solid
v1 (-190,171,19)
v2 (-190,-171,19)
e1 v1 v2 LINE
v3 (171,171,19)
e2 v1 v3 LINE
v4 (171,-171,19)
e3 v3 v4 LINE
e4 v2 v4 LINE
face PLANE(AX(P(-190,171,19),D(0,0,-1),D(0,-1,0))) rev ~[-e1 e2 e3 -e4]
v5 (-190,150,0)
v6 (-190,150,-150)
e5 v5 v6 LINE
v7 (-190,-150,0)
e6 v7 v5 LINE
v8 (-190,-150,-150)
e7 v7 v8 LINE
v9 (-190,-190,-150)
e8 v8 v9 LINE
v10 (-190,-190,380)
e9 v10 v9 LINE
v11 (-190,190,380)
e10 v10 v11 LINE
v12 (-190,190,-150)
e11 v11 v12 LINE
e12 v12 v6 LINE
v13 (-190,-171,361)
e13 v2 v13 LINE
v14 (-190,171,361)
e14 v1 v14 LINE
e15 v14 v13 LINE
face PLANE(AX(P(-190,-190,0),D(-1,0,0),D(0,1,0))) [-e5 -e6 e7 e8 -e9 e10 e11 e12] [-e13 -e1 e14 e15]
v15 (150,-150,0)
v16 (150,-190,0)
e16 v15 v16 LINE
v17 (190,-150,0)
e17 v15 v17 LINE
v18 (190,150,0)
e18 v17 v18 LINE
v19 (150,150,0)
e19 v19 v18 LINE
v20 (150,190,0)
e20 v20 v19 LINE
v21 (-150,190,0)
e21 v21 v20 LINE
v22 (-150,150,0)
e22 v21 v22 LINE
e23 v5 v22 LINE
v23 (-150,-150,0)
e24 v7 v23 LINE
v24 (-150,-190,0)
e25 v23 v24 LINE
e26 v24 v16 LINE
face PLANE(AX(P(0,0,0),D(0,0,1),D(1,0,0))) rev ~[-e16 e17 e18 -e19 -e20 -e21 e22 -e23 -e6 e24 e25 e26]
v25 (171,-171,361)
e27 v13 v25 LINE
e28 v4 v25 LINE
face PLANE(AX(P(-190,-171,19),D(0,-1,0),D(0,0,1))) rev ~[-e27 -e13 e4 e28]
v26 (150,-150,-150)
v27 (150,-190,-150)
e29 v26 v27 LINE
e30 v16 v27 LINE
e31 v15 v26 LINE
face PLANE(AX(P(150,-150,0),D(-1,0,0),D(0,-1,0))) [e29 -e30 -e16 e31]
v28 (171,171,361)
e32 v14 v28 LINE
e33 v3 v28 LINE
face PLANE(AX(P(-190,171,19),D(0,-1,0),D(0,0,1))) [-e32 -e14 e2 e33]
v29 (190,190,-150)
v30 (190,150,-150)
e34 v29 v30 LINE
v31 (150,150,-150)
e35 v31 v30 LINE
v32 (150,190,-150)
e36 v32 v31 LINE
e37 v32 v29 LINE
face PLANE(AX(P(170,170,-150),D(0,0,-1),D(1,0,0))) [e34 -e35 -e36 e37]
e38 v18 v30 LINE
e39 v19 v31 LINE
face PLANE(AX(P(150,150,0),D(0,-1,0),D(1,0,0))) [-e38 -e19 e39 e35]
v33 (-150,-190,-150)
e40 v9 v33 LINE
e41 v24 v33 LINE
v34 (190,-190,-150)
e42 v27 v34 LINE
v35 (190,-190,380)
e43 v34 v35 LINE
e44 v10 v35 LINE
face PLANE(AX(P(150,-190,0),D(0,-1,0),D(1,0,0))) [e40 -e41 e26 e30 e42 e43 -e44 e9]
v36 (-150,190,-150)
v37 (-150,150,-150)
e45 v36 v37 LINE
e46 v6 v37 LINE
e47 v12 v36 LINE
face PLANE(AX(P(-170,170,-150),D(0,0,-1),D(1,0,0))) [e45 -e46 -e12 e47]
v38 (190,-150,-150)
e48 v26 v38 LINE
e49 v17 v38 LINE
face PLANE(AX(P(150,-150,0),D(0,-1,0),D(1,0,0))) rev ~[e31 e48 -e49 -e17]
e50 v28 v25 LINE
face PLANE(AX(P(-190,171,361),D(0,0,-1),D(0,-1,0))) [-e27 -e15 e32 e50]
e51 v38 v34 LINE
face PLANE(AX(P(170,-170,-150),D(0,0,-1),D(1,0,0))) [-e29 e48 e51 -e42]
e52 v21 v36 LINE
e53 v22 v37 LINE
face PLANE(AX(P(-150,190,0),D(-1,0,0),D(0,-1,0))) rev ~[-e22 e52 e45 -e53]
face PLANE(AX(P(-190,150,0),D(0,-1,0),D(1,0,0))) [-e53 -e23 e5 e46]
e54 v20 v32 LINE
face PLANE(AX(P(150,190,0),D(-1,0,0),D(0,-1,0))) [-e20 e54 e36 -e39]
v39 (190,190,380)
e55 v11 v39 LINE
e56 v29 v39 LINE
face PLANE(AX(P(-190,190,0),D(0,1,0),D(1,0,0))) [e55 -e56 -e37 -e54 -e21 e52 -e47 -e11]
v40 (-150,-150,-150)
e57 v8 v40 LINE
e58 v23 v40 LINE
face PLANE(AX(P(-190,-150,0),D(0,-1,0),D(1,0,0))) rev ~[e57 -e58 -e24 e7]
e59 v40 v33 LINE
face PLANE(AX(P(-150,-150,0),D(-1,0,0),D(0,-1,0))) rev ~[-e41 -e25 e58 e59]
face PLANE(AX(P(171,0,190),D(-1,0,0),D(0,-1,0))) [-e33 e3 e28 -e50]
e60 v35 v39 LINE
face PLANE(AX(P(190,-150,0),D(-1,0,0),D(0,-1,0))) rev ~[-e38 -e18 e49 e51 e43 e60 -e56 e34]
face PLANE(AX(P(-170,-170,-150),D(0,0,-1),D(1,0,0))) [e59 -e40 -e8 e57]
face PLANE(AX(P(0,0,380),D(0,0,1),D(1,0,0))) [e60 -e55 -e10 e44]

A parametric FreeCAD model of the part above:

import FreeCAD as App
import Part
import Sketcher
from FreeCAD import Vector


def add_polygon(sketch, points):
    """Adds a closed chain of lines whose ends are joined by coincident constraints."""
    first, n = sketch.GeometryCount, len(points)
    for a, b in zip(points, points[1:] + points[:1]):
        sketch.addGeometry(Part.LineSegment(App.Vector(*a, 0), App.Vector(*b, 0)), False)
    for i in range(n):
        sketch.addConstraint(Sketcher.Constraint("Coincident", first + i, 2, first + (i + 1) % n, 1))

doc = App.newDocument("Part")
body = doc.addObject("PartDesign::Body", "Body")

# Sketch on XY plane
sketch1 = body.newObject("Sketcher::SketchObject", "Sketch")
sketch1.AttachmentSupport = (doc.getObject("XY_Plane"), [""])
sketch1.MapMode = "FlatFace"
add_polygon(sketch1, [(-190, 190), (-190, -190), (190, -190), (190, 190)])  # lines 0-3
sketch1.addConstraint([
    Sketcher.Constraint("Vertical", 0),
    Sketcher.Constraint("Horizontal", 1),
    Sketcher.Constraint("Vertical", 2),
    Sketcher.Constraint("Horizontal", 3),
    Sketcher.Constraint("Symmetric", 0, 2, 2, 2, -1, 1),
    Sketcher.Constraint("Equal", 3, 0),
    Sketcher.Constraint("DistanceX", 1, 1, 1, 2, 380.0),
])
pad1 = body.newObject("PartDesign::Pad", "Pad")
pad1.Profile = sketch1
pad1.Length = 380

# Sketch on YZ plane
sketch2 = body.newObject("Sketcher::SketchObject", "Sketch001")
sketch2.AttachmentSupport = (doc.getObject("YZ_Plane"), [""])
sketch2.MapMode = "FlatFace"
sketch2.AttachmentOffset = App.Placement(Vector(0, 0, -190), App.Rotation())
add_polygon(sketch2, [(171, 361), (171, 19), (-171, 19), (-171, 361)])  # lines 0-3
sketch2.addConstraint([
    Sketcher.Constraint("Vertical", 0),
    Sketcher.Constraint("Horizontal", 1),
    Sketcher.Constraint("Vertical", 2),
    Sketcher.Constraint("Horizontal", 3),
    Sketcher.Constraint("Equal", 3, 0),
    Sketcher.Constraint("DistanceX", 1, 2, 1, 1, 342.0),
    Sketcher.Constraint("DistanceX", -1, 1, 0, 2, 171.0),
    Sketcher.Constraint("DistanceY", -1, 1, 0, 2, 19.0),
])
pocket1 = body.newObject("PartDesign::Pocket", "Pocket")
pocket1.Profile = sketch2
pocket1.Length = 361
pocket1.Reversed = True

# Sketch on XY plane
sketch3 = body.newObject("Sketcher::SketchObject", "Sketch002")
sketch3.AttachmentSupport = (doc.getObject("XY_Plane"), [""])
sketch3.MapMode = "FlatFace"
add_polygon(sketch3, [(150, -190), (150, -150), (190, -150), (190, -190)])  # lines 0-3
add_polygon(sketch3, [(-190, -190), (-190, -150), (-150, -150), (-150, -190)])  # lines 4-7
add_polygon(sketch3, [(-190, 150), (-190, 190), (-150, 190), (-150, 150)])  # lines 8-11
add_polygon(sketch3, [(150, 150), (150, 190), (190, 190), (190, 150)])  # lines 12-15
sketch3.addConstraint([
    Sketcher.Constraint("Vertical", 0),
    Sketcher.Constraint("Horizontal", 1),
    Sketcher.Constraint("Vertical", 2),
    Sketcher.Constraint("Horizontal", 3),
    Sketcher.Constraint("Vertical", 4),
    Sketcher.Constraint("Horizontal", 5),
    Sketcher.Constraint("Vertical", 6),
    Sketcher.Constraint("Horizontal", 7),
    Sketcher.Constraint("Vertical", 8),
    Sketcher.Constraint("Horizontal", 9),
    Sketcher.Constraint("Vertical", 10),
    Sketcher.Constraint("Horizontal", 11),
    Sketcher.Constraint("Vertical", 12),
    Sketcher.Constraint("Horizontal", 13),
    Sketcher.Constraint("Vertical", 14),
    Sketcher.Constraint("Horizontal", 15),
    Sketcher.Constraint("Symmetric", 2, 2, 8, 2, -1, 1),
    Sketcher.Constraint("Symmetric", 0, 2, 10, 2, -1, 1),
    Sketcher.Constraint("Symmetric", 6, 2, 12, 2, -1, 1),
    Sketcher.Constraint("Symmetric", 4, 2, 14, 2, -1, 1),
    Sketcher.Constraint("Symmetric", 1, 2, 4, 2, -2),
    Sketcher.Constraint("Symmetric", 3, 2, 6, 2, -2),
    Sketcher.Constraint("Equal", 15, 0),
    Sketcher.Constraint("DistanceX", 1, 1, 1, 2, 40.0),
    Sketcher.Constraint("DistanceX", -1, 1, 0, 2, 150.0),
    Sketcher.Constraint("DistanceY", 0, 2, -1, 1, 150.0),
])
pad2 = body.newObject("PartDesign::Pad", "Pad001")
pad2.Profile = sketch3
pad2.Length = 150
pad2.Reversed = True

doc.recompute()
